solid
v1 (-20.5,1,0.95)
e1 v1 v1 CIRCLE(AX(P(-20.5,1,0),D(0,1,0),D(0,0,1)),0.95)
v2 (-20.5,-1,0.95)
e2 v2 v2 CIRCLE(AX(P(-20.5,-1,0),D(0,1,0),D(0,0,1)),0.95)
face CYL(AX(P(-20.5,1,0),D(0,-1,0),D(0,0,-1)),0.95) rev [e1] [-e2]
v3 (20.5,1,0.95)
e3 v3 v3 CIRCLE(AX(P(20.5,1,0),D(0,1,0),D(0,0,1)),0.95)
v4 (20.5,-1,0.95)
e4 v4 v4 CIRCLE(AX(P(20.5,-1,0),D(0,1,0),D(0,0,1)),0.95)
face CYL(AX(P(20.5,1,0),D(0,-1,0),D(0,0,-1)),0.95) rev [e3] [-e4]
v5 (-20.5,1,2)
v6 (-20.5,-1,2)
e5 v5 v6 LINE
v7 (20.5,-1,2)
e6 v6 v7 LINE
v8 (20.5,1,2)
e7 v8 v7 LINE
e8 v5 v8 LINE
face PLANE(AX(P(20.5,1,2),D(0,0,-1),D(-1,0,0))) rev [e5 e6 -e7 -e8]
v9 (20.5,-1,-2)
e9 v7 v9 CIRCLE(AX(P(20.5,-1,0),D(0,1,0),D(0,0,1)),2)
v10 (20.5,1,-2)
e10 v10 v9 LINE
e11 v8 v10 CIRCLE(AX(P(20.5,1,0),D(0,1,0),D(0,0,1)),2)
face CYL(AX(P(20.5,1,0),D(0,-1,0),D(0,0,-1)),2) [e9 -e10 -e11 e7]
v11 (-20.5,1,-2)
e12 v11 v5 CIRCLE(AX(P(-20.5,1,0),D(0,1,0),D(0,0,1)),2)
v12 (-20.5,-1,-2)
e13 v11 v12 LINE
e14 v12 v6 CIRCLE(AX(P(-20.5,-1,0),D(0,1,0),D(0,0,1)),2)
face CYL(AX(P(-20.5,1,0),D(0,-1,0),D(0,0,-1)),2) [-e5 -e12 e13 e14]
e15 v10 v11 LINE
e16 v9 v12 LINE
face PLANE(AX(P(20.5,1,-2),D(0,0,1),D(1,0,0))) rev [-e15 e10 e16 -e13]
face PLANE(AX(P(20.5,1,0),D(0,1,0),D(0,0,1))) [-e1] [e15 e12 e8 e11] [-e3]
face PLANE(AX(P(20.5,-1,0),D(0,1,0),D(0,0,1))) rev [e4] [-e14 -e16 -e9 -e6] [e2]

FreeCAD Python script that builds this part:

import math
import FreeCAD as App
import Part
import Sketcher
from FreeCAD import Vector
Q = App.Units.Quantity

doc = App.newDocument("Part")
body = doc.addObject("PartDesign::Body", "Body")

# Sketch on XZ plane
sketch1 = doc.addObject("Sketcher::SketchObject", "Sketch")
body.addObject(sketch1)
sketch1.AttachmentSupport = (doc.XZ_Plane, [""])
sketch1.MapMode = "FlatFace"
sketch1.addGeometry([
    Part.LineSegment(Vector(-20.5, 2, 0), Vector(20.5, 2, 0)),  # 0
    Part.ArcOfCircle(Part.Circle(Vector(20.5, 0, 0), Vector(0, 0, 1), 2), math.radians(-90), math.radians(90)),  # 1
    Part.LineSegment(Vector(20.5, -2, 0), Vector(-20.5, -2, 0)),  # 2
    Part.ArcOfCircle(Part.Circle(Vector(-20.5, 0, 0), Vector(0, 0, 1), 2), math.radians(90), math.radians(270)),  # 3
    Part.Circle(Vector(20.5, 0, 0), Vector(0, 0, 1), 0.9),  # 4
    Part.Circle(Vector(-20.5, 0, 0), Vector(0, 0, 1), 0.9),  # 5
], False)
sketch1.addConstraint([
    Sketcher.Constraint("Tangent", 0, 2, 1, 2),
    Sketcher.Constraint("Tangent", 1, 1, 2, 1),
    Sketcher.Constraint("Tangent", 2, 2, 3, 2),
    Sketcher.Constraint("Tangent", 3, 1, 0, 1),
    Sketcher.Constraint("Horizontal", 0),
    Sketcher.Constraint("Horizontal", 2),
    Sketcher.Constraint("Coincident", 4, 3, 1, 3),
    Sketcher.Constraint("Coincident", 5, 3, 3, 3),
    Sketcher.Constraint("Equal", 4, 5),
    Sketcher.Constraint("Symmetric", 1, 3, 3, 3, -1, 1),
    Sketcher.Constraint("Radius", 1, Q("2 mm")),
    Sketcher.Constraint("Diameter", 4, Q("1.9 mm")),
    Sketcher.Constraint("DistanceX", 0, 1, 0, 2, Q("41 mm")),
])
pad1 = doc.addObject("PartDesign::Pad", "Pad")
body.addObject(pad1)
pad1.Profile = sketch1
pad1.Length = 2
pad1.Midplane = True

doc.recompute()
